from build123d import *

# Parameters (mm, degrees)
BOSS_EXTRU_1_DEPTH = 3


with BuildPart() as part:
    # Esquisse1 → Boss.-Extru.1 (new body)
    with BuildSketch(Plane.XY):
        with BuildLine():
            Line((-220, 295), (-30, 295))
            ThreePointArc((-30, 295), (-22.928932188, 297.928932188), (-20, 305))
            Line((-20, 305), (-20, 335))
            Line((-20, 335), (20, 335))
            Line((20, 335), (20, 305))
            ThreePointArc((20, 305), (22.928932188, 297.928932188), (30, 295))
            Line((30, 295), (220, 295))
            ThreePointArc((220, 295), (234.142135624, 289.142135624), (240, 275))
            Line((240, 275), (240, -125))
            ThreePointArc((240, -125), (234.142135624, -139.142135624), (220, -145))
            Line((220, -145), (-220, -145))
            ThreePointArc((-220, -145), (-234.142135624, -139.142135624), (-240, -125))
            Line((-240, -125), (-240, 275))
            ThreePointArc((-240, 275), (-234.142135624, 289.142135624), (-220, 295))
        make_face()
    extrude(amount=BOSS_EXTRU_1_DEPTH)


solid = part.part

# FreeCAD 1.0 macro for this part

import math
import FreeCAD as App
import Part
import Sketcher

V = App.Vector
Q = App.Units.Quantity

doc = App.newDocument("Part")
body = doc.addObject("PartDesign::Body", "Body")

# Sketch on XY plane
sketch1 = body.newObject("Sketcher::SketchObject", "Sketch")
sketch1.AttachmentSupport = (doc.getObject("XY_Plane"), [""])
sketch1.MapMode = "FlatFace"
sketch1.addGeometry([
    Part.LineSegment(V(-30, 295, 0), V(-220, 295, 0)),  # 0
    Part.ArcOfCircle(Part.Circle(V(-220, 275, 0), V(0, 0, 1), 20), math.radians(90), math.radians(180)),  # 1
    Part.LineSegment(V(-240, 275, 0), V(-240, -125, 0)),  # 2
    Part.ArcOfCircle(Part.Circle(V(-220, -125, 0), V(0, 0, 1), 20), math.radians(180), math.radians(270)),  # 3
    Part.LineSegment(V(-220, -145, 0), V(220, -145, 0)),  # 4
    Part.ArcOfCircle(Part.Circle(V(220, -125, 0), V(0, 0, 1), 20), math.radians(-90), math.radians(0)),  # 5
    Part.LineSegment(V(240, -125, 0), V(240, 275, 0)),  # 6
    Part.ArcOfCircle(Part.Circle(V(220, 275, 0), V(0, 0, 1), 20), math.radians(0), math.radians(90)),  # 7
    Part.LineSegment(V(220, 295, 0), V(30, 295, 0)),  # 8
    Part.ArcOfCircle(Part.Circle(V(30, 305, 0), V(0, 0, 1), 10), math.radians(180), math.radians(270)),  # 9
    Part.LineSegment(V(20, 305, 0), V(20, 335, 0)),  # 10
    Part.LineSegment(V(20, 335, 0), V(-20, 335, 0)),  # 11
    Part.LineSegment(V(-20, 335, 0), V(-20, 305, 0)),  # 12
    Part.ArcOfCircle(Part.Circle(V(-30, 305, 0), V(0, 0, 1), 10), math.radians(-90), math.radians(0)),  # 13
], False)
sketch1.addConstraint([
    Sketcher.Constraint("Tangent", 0, 2, 1, 1),
    Sketcher.Constraint("Tangent", 1, 2, 2, 1),
    Sketcher.Constraint("Tangent", 2, 2, 3, 1),
    Sketcher.Constraint("Tangent", 3, 2, 4, 1),
    Sketcher.Constraint("Tangent", 4, 2, 5, 1),
    Sketcher.Constraint("Tangent", 5, 2, 6, 1),
    Sketcher.Constraint("Tangent", 6, 2, 7, 1),
    Sketcher.Constraint("Tangent", 7, 2, 8, 1),
    Sketcher.Constraint("Tangent", 8, 2, 9, 2),
    Sketcher.Constraint("Tangent", 9, 1, 10, 1),
    Sketcher.Constraint("Coincident", 10, 2, 11, 1),
    Sketcher.Constraint("Coincident", 11, 2, 12, 1),
    Sketcher.Constraint("Tangent", 12, 2, 13, 2),
    Sketcher.Constraint("Tangent", 13, 1, 0, 1),
    Sketcher.Constraint("Horizontal", 0),
    Sketcher.Constraint("Vertical", 2),
    Sketcher.Constraint("Horizontal", 4),
    Sketcher.Constraint("Vertical", 6),
    Sketcher.Constraint("Horizontal", 8),
    Sketcher.Constraint("Vertical", 10),
    Sketcher.Constraint("Horizontal", 11),
    Sketcher.Constraint("Vertical", 12),
    Sketcher.Constraint("Equal", 1, 3),
    Sketcher.Constraint("Equal", 3, 5),
    Sketcher.Constraint("Equal", 5, 7),
    Sketcher.Constraint("Equal", 9, 13),
    Sketcher.Constraint("Symmetric", 1, 3, 7, 3, -2),
    Sketcher.Constraint("Equal", 0, 8),
    Sketcher.Constraint("Radius", 1, Q("20 mm")),
    Sketcher.Constraint("Radius", 9, Q("10 mm")),
    Sketcher.Constraint("DistanceX", 0, 2, 0, 1, Q("190 mm")),
    Sketcher.Constraint("DistanceX", 4, 1, 4, 2, Q("440 mm")),
    Sketcher.Constraint("DistanceY", 2, 2, 2, 1, Q("400 mm")),
    Sketcher.Constraint("DistanceY", 10, 1, 10, 2, Q("30 mm")),
    Sketcher.Constraint("DistanceY", -1, 1, 1, 3, Q("275 mm")),
])
pad1 = body.newObject("PartDesign::Pad", "Pad")
pad1.Profile = sketch1
pad1.Length = 3

doc.recompute()
